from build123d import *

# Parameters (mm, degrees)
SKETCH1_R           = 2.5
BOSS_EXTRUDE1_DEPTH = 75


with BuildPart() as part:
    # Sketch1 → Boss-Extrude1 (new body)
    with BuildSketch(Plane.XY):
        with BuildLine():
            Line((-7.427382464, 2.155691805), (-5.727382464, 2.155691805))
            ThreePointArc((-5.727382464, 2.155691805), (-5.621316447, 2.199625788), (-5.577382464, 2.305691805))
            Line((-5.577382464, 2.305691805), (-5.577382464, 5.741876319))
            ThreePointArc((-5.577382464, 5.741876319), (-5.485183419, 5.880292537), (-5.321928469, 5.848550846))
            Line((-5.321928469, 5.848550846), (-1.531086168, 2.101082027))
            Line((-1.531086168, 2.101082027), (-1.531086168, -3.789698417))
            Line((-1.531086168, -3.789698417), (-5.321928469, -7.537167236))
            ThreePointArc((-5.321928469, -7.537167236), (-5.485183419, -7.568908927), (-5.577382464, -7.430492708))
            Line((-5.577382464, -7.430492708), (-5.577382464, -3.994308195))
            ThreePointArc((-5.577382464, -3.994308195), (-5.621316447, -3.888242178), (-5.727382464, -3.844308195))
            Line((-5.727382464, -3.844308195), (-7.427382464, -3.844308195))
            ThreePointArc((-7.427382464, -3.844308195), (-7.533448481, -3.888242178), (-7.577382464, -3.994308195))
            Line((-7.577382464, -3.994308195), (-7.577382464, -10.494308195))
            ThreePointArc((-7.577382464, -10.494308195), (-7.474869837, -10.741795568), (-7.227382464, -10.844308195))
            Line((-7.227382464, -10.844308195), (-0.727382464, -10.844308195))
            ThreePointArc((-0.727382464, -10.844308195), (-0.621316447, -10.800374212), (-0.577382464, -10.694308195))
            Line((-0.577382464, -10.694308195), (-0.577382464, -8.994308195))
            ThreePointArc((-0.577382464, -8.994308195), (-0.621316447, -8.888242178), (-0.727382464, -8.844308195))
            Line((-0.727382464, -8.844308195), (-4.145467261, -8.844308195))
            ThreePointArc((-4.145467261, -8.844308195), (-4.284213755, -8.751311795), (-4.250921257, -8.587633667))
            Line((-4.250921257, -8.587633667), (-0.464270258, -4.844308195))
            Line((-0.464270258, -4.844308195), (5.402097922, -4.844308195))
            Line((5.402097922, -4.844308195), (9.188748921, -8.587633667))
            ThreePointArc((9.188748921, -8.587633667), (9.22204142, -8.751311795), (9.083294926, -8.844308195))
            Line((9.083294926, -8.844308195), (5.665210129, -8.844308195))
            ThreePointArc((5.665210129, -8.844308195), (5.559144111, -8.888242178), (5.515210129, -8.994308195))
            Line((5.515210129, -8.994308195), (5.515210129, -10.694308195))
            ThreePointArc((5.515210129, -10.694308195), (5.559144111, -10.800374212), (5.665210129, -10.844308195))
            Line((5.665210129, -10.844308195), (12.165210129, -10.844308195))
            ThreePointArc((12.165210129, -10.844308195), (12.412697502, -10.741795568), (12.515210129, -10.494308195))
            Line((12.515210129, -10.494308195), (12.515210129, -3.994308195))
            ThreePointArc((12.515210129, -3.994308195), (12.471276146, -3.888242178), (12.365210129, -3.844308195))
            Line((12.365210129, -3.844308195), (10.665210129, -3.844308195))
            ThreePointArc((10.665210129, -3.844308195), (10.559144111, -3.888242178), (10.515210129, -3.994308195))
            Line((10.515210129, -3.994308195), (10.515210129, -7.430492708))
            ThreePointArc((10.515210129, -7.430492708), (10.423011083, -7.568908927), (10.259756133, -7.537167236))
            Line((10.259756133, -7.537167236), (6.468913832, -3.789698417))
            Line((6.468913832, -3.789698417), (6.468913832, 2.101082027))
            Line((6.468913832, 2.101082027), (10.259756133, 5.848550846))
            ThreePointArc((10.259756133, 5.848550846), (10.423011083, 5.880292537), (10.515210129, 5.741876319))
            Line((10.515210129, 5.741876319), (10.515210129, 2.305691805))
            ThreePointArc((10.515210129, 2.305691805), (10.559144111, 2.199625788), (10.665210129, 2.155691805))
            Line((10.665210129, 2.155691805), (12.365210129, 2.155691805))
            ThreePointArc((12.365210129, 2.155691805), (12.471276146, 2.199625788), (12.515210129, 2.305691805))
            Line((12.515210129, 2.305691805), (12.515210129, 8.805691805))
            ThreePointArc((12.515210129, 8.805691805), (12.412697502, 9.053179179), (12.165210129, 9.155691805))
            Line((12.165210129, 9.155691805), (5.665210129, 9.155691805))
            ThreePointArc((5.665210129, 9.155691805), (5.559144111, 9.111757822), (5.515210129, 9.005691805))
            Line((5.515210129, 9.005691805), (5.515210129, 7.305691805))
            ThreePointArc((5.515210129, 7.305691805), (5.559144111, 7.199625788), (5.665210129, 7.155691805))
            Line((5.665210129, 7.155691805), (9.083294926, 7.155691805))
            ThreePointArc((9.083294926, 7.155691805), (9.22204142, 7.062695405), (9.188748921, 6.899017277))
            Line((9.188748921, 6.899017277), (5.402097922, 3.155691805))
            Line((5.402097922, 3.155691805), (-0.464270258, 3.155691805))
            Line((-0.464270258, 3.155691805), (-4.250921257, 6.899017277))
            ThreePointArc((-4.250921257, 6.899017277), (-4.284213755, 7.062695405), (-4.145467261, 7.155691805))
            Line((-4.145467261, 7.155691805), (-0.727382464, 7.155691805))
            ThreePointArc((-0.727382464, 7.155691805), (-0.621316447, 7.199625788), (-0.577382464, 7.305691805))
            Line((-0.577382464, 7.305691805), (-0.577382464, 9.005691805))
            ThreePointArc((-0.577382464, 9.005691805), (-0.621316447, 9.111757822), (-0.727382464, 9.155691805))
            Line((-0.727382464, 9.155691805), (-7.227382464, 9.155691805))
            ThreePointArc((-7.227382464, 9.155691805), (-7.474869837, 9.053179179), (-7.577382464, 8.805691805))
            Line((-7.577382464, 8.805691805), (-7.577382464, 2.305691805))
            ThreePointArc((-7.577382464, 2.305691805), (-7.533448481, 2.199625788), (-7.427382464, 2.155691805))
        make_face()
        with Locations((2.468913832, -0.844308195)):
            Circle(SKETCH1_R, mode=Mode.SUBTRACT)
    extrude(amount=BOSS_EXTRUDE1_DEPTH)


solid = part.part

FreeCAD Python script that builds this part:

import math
import FreeCAD as App
import Part
import Sketcher
from FreeCAD import Vector

doc = App.newDocument("Part")
params = doc.addObject("Spreadsheet::Sheet", "Params")
for row, (alias, value) in enumerate([
    ("sketch1_diameter", "5 mm"),
    ("sketch1_radius", "0.15 mm"),
    ("sketch1_radius2", "0.35 mm"),
    ("sketch1_width", "1.7 mm"),
    ("sketch1_width2", "6.5 mm"),
    ("pad1_length", "75 mm"),
], start=1):
    params.set(f"A{row}", alias)
    params.set(f"B{row}", "=" + value)
    params.setAlias(f"B{row}", alias)

body = doc.addObject("PartDesign::Body", "Body")

# Sketch on XY plane
sketch1 = doc.addObject("Sketcher::SketchObject", "Sketch")
body.addObject(sketch1)
sketch1.AttachmentSupport = (doc.XY_Plane, [""])
sketch1.MapMode = "FlatFace"
sketch1.addGeometry(Part.LineSegment(Vector(-7.43, 2.16, 0), Vector(-5.73, 2.16, 0)), False)
sketch1.addGeometry(Part.ArcOfCircle(Part.Circle(Vector(-5.73, 2.31, 0), Vector(0, 0, 1), 0.15), math.radians(-90), math.radians(0)), False)
sketch1.addGeometry(Part.LineSegment(Vector(-5.58, 2.31, 0), Vector(-5.58, 5.74, 0)), False)
sketch1.addGeometry(Part.ArcOfCircle(Part.Circle(Vector(-5.43, 5.74, 0), Vector(0, 0, 1), 0.15), math.radians(45), math.radians(180)), False)
sketch1.addGeometry(Part.LineSegment(Vector(-5.32, 5.85, 0), Vector(-1.53, 2.1, 0)), False)
sketch1.addGeometry(Part.LineSegment(Vector(-1.53, 2.1, 0), Vector(-1.53, -3.79, 0)), False)
sketch1.addGeometry(Part.LineSegment(Vector(-1.53, -3.79, 0), Vector(-5.32, -7.54, 0)), False)
sketch1.addGeometry(Part.ArcOfCircle(Part.Circle(Vector(-5.43, -7.43, 0), Vector(0, 0, 1), 0.15), math.radians(180), math.radians(315)), False)
sketch1.addGeometry(Part.LineSegment(Vector(-5.58, -7.43, 0), Vector(-5.58, -3.99, 0)), False)
sketch1.addGeometry(Part.ArcOfCircle(Part.Circle(Vector(-5.73, -3.99, 0), Vector(0, 0, 1), 0.15), math.radians(0), math.radians(90)), False)
sketch1.addGeometry(Part.LineSegment(Vector(-5.73, -3.84, 0), Vector(-7.43, -3.84, 0)), False)
sketch1.addGeometry(Part.ArcOfCircle(Part.Circle(Vector(-7.43, -3.99, 0), Vector(0, 0, 1), 0.15), math.radians(90), math.radians(180)), False)
sketch1.addGeometry(Part.LineSegment(Vector(-7.58, -3.99, 0), Vector(-7.58, -10.49, 0)), False)
sketch1.addGeometry(Part.ArcOfCircle(Part.Circle(Vector(-7.23, -10.49, 0), Vector(0, 0, 1), 0.35), math.radians(-180), math.radians(-90)), False)
sketch1.addGeometry(Part.LineSegment(Vector(-7.23, -10.84, 0), Vector(-0.73, -10.84, 0)), False)
sketch1.addGeometry(Part.ArcOfCircle(Part.Circle(Vector(-0.73, -10.69, 0), Vector(0, 0, 1), 0.15), math.radians(-90), math.radians(0)), False)
sketch1.addGeometry(Part.LineSegment(Vector(-0.58, -10.69, 0), Vector(-0.58, -8.99, 0)), False)
sketch1.addGeometry(Part.ArcOfCircle(Part.Circle(Vector(-0.73, -8.99, 0), Vector(0, 0, 1), 0.15), math.radians(0), math.radians(90)), False)
sketch1.addGeometry(Part.LineSegment(Vector(-0.73, -8.84, 0), Vector(-4.15, -8.84, 0)), False)
sketch1.addGeometry(Part.ArcOfCircle(Part.Circle(Vector(-4.15, -8.69, 0), Vector(0, 0, 1), 0.15), math.radians(135), math.radians(270)), False)
sketch1.addGeometry(Part.LineSegment(Vector(-4.25, -8.59, 0), Vector(-0.46, -4.84, 0)), False)
sketch1.addGeometry(Part.LineSegment(Vector(-0.46, -4.84, 0), Vector(5.4, -4.84, 0)), False)
sketch1.addGeometry(Part.LineSegment(Vector(5.4, -4.84, 0), Vector(9.19, -8.59, 0)), False)
sketch1.addGeometry(Part.ArcOfCircle(Part.Circle(Vector(9.08, -8.69, 0), Vector(0, 0, 1), 0.15), math.radians(-90), math.radians(45)), False)
sketch1.addGeometry(Part.LineSegment(Vector(9.08, -8.84, 0), Vector(5.67, -8.84, 0)), False)
sketch1.addGeometry(Part.ArcOfCircle(Part.Circle(Vector(5.67, -8.99, 0), Vector(0, 0, 1), 0.15), math.radians(90), math.radians(180)), False)
sketch1.addGeometry(Part.LineSegment(Vector(5.52, -8.99, 0), Vector(5.52, -10.69, 0)), False)
sketch1.addGeometry(Part.ArcOfCircle(Part.Circle(Vector(5.67, -10.69, 0), Vector(0, 0, 1), 0.15), math.radians(180), math.radians(270)), False)
sketch1.addGeometry(Part.LineSegment(Vector(5.67, -10.84, 0), Vector(12.17, -10.84, 0)), False)
sketch1.addGeometry(Part.ArcOfCircle(Part.Circle(Vector(12.17, -10.49, 0), Vector(0, 0, 1), 0.35), math.radians(-90), math.radians(0)), False)
sketch1.addGeometry(Part.LineSegment(Vector(12.52, -10.49, 0), Vector(12.52, -3.99, 0)), False)
sketch1.addGeometry(Part.ArcOfCircle(Part.Circle(Vector(12.37, -3.99, 0), Vector(0, 0, 1), 0.15), math.radians(0), math.radians(90)), False)
sketch1.addGeometry(Part.LineSegment(Vector(12.37, -3.84, 0), Vector(10.67, -3.84, 0)), False)
sketch1.addGeometry(Part.ArcOfCircle(Part.Circle(Vector(10.67, -3.99, 0), Vector(0, 0, 1), 0.15), math.radians(90), math.radians(180)), False)
sketch1.addGeometry(Part.LineSegment(Vector(10.52, -3.99, 0), Vector(10.52, -7.43, 0)), False)
sketch1.addGeometry(Part.ArcOfCircle(Part.Circle(Vector(10.37, -7.43, 0), Vector(0, 0, 1), 0.15), math.radians(-135), math.radians(0)), False)
sketch1.addGeometry(Part.LineSegment(Vector(10.26, -7.54, 0), Vector(6.47, -3.79, 0)), False)
sketch1.addGeometry(Part.LineSegment(Vector(6.47, -3.79, 0), Vector(6.47, 2.1, 0)), False)
sketch1.addGeometry(Part.LineSegment(Vector(6.47, 2.1, 0), Vector(10.26, 5.85, 0)), False)
sketch1.addGeometry(Part.ArcOfCircle(Part.Circle(Vector(10.37, 5.74, 0), Vector(0, 0, 1), 0.15), math.radians(0), math.radians(135)), False)
sketch1.addGeometry(Part.LineSegment(Vector(10.52, 5.74, 0), Vector(10.52, 2.31, 0)), False)
sketch1.addGeometry(Part.ArcOfCircle(Part.Circle(Vector(10.67, 2.31, 0), Vector(0, 0, 1), 0.15), math.radians(180), math.radians(270)), False)
sketch1.addGeometry(Part.LineSegment(Vector(10.67, 2.16, 0), Vector(12.37, 2.16, 0)), False)
sketch1.addGeometry(Part.ArcOfCircle(Part.Circle(Vector(12.37, 2.31, 0), Vector(0, 0, 1), 0.15), math.radians(-90), math.radians(0)), False)
sketch1.addGeometry(Part.LineSegment(Vector(12.52, 2.31, 0), Vector(12.52, 8.81, 0)), False)
sketch1.addGeometry(Part.ArcOfCircle(Part.Circle(Vector(12.17, 8.81, 0), Vector(0, 0, 1), 0.35), math.radians(0), math.radians(90)), False)
sketch1.addGeometry(Part.LineSegment(Vector(12.17, 9.16, 0), Vector(5.67, 9.16, 0)), False)
sketch1.addGeometry(Part.ArcOfCircle(Part.Circle(Vector(5.67, 9.01, 0), Vector(0, 0, 1), 0.15), math.radians(90), math.radians(180)), False)
sketch1.addGeometry(Part.LineSegment(Vector(5.52, 9.01, 0), Vector(5.52, 7.31, 0)), False)
sketch1.addGeometry(Part.ArcOfCircle(Part.Circle(Vector(5.67, 7.31, 0), Vector(0, 0, 1), 0.15), math.radians(180), math.radians(270)), False)
sketch1.addGeometry(Part.LineSegment(Vector(5.67, 7.16, 0), Vector(9.08, 7.16, 0)), False)
sketch1.addGeometry(Part.ArcOfCircle(Part.Circle(Vector(9.08, 7.01, 0), Vector(0, 0, 1), 0.15), math.radians(-45), math.radians(90)), False)
sketch1.addGeometry(Part.LineSegment(Vector(9.19, 6.9, 0), Vector(5.4, 3.16, 0)), False)
sketch1.addGeometry(Part.LineSegment(Vector(5.4, 3.16, 0), Vector(-0.46, 3.16, 0)), False)
sketch1.addGeometry(Part.LineSegment(Vector(-0.46, 3.16, 0), Vector(-4.25, 6.9, 0)), False)
sketch1.addGeometry(Part.ArcOfCircle(Part.Circle(Vector(-4.15, 7.01, 0), Vector(0, 0, 1), 0.15), math.radians(90), math.radians(225)), False)
sketch1.addGeometry(Part.LineSegment(Vector(-4.15, 7.16, 0), Vector(-0.73, 7.16, 0)), False)
sketch1.addGeometry(Part.ArcOfCircle(Part.Circle(Vector(-0.73, 7.31, 0), Vector(0, 0, 1), 0.15), math.radians(-90), math.radians(0)), False)
sketch1.addGeometry(Part.LineSegment(Vector(-0.58, 7.31, 0), Vector(-0.58, 9.01, 0)), False)
sketch1.addGeometry(Part.ArcOfCircle(Part.Circle(Vector(-0.73, 9.01, 0), Vector(0, 0, 1), 0.15), math.radians(0), math.radians(90)), False)
sketch1.addGeometry(Part.LineSegment(Vector(-0.73, 9.16, 0), Vector(-7.23, 9.16, 0)), False)
sketch1.addGeometry(Part.ArcOfCircle(Part.Circle(Vector(-7.23, 8.81, 0), Vector(0, 0, 1), 0.35), math.radians(90), math.radians(180)), False)
sketch1.addGeometry(Part.LineSegment(Vector(-7.58, 8.81, 0), Vector(-7.58, 2.31, 0)), False)
sketch1.addGeometry(Part.ArcOfCircle(Part.Circle(Vector(-7.43, 2.31, 0), Vector(0, 0, 1), 0.15), math.radians(-180), math.radians(-90)), False)
sketch1.addGeometry(Part.Circle(Vector(2.47, -0.84, 0), Vector(0, 0, 1), 2.5), False)
sketch1.addConstraint(Sketcher.Constraint("Tangent", 0, 2, 1, 1))
sketch1.addConstraint(Sketcher.Constraint("Tangent", 1, 2, 2, 1))
sketch1.addConstraint(Sketcher.Constraint("Tangent", 2, 2, 3, 2))
sketch1.addConstraint(Sketcher.Constraint("Tangent", 3, 1, 4, 1))
sketch1.addConstraint(Sketcher.Constraint("Coincident", 4, 2, 5, 1))
sketch1.addConstraint(Sketcher.Constraint("Coincident", 5, 2, 6, 1))
sketch1.addConstraint(Sketcher.Constraint("Tangent", 6, 2, 7, 2))
sketch1.addConstraint(Sketcher.Constraint("Tangent", 7, 1, 8, 1))
sketch1.addConstraint(Sketcher.Constraint("Tangent", 8, 2, 9, 1))
sketch1.addConstraint(Sketcher.Constraint("Tangent", 9, 2, 10, 1))
sketch1.addConstraint(Sketcher.Constraint("Tangent", 10, 2, 11, 1))
sketch1.addConstraint(Sketcher.Constraint("Tangent", 11, 2, 12, 1))
sketch1.addConstraint(Sketcher.Constraint("Tangent", 12, 2, 13, 1))
sketch1.addConstraint(Sketcher.Constraint("Tangent", 13, 2, 14, 1))
sketch1.addConstraint(Sketcher.Constraint("Tangent", 14, 2, 15, 1))
sketch1.addConstraint(Sketcher.Constraint("Tangent", 15, 2, 16, 1))
sketch1.addConstraint(Sketcher.Constraint("Tangent", 16, 2, 17, 1))
sketch1.addConstraint(Sketcher.Constraint("Tangent", 17, 2, 18, 1))
sketch1.addConstraint(Sketcher.Constraint("Tangent", 18, 2, 19, 2))
sketch1.addConstraint(Sketcher.Constraint("Tangent", 19, 1, 20, 1))
sketch1.addConstraint(Sketcher.Constraint("Coincident", 20, 2, 21, 1))
sketch1.addConstraint(Sketcher.Constraint("Coincident", 21, 2, 22, 1))
sketch1.addConstraint(Sketcher.Constraint("Tangent", 22, 2, 23, 2))
sketch1.addConstraint(Sketcher.Constraint("Tangent", 23, 1, 24, 1))
sketch1.addConstraint(Sketcher.Constraint("Tangent", 24, 2, 25, 1))
sketch1.addConstraint(Sketcher.Constraint("Tangent", 25, 2, 26, 1))
sketch1.addConstraint(Sketcher.Constraint("Tangent", 26, 2, 27, 1))
sketch1.addConstraint(Sketcher.Constraint("Tangent", 27, 2, 28, 1))
sketch1.addConstraint(Sketcher.Constraint("Tangent", 28, 2, 29, 1))
sketch1.addConstraint(Sketcher.Constraint("Tangent", 29, 2, 30, 1))
sketch1.addConstraint(Sketcher.Constraint("Tangent", 30, 2, 31, 1))
sketch1.addConstraint(Sketcher.Constraint("Tangent", 31, 2, 32, 1))
sketch1.addConstraint(Sketcher.Constraint("Tangent", 32, 2, 33, 1))
sketch1.addConstraint(Sketcher.Constraint("Tangent", 33, 2, 34, 1))
sketch1.addConstraint(Sketcher.Constraint("Tangent", 34, 2, 35, 2))
sketch1.addConstraint(Sketcher.Constraint("Tangent", 35, 1, 36, 1))
sketch1.addConstraint(Sketcher.Constraint("Coincident", 36, 2, 37, 1))
sketch1.addConstraint(Sketcher.Constraint("Coincident", 37, 2, 38, 1))
sketch1.addConstraint(Sketcher.Constraint("Tangent", 38, 2, 39, 2))
sketch1.addConstraint(Sketcher.Constraint("Tangent", 39, 1, 40, 1))
sketch1.addConstraint(Sketcher.Constraint("Tangent", 40, 2, 41, 1))
sketch1.addConstraint(Sketcher.Constraint("Tangent", 41, 2, 42, 1))
sketch1.addConstraint(Sketcher.Constraint("Tangent", 42, 2, 43, 1))
sketch1.addConstraint(Sketcher.Constraint("Tangent", 43, 2, 44, 1))
sketch1.addConstraint(Sketcher.Constraint("Tangent", 44, 2, 45, 1))
sketch1.addConstraint(Sketcher.Constraint("Tangent", 45, 2, 46, 1))
sketch1.addConstraint(Sketcher.Constraint("Tangent", 46, 2, 47, 1))
sketch1.addConstraint(Sketcher.Constraint("Tangent", 47, 2, 48, 1))
sketch1.addConstraint(Sketcher.Constraint("Tangent", 48, 2, 49, 1))
sketch1.addConstraint(Sketcher.Constraint("Tangent", 49, 2, 50, 1))
sketch1.addConstraint(Sketcher.Constraint("Tangent", 50, 2, 51, 2))
sketch1.addConstraint(Sketcher.Constraint("Tangent", 51, 1, 52, 1))
sketch1.addConstraint(Sketcher.Constraint("Coincident", 52, 2, 53, 1))
sketch1.addConstraint(Sketcher.Constraint("Coincident", 53, 2, 54, 1))
sketch1.addConstraint(Sketcher.Constraint("Tangent", 54, 2, 55, 2))
sketch1.addConstraint(Sketcher.Constraint("Tangent", 55, 1, 56, 1))
sketch1.addConstraint(Sketcher.Constraint("Tangent", 56, 2, 57, 1))
sketch1.addConstraint(Sketcher.Constraint("Tangent", 57, 2, 58, 1))
sketch1.addConstraint(Sketcher.Constraint("Tangent", 58, 2, 59, 1))
sketch1.addConstraint(Sketcher.Constraint("Tangent", 59, 2, 60, 1))
sketch1.addConstraint(Sketcher.Constraint("Tangent", 60, 2, 61, 1))
sketch1.addConstraint(Sketcher.Constraint("Tangent", 61, 2, 62, 1))
sketch1.addConstraint(Sketcher.Constraint("Tangent", 62, 2, 63, 1))
sketch1.addConstraint(Sketcher.Constraint("Tangent", 63, 2, 0, 1))
sketch1.addConstraint(Sketcher.Constraint("Horizontal", 0))
sketch1.addConstraint(Sketcher.Constraint("Vertical", 2))
sketch1.addConstraint(Sketcher.Constraint("Vertical", 5))
sketch1.addConstraint(Sketcher.Constraint("Vertical", 8))
sketch1.addConstraint(Sketcher.Constraint("Horizontal", 10))
sketch1.addConstraint(Sketcher.Constraint("Vertical", 12))
sketch1.addConstraint(Sketcher.Constraint("Horizontal", 14))
sketch1.addConstraint(Sketcher.Constraint("Vertical", 16))
sketch1.addConstraint(Sketcher.Constraint("Horizontal", 18))
sketch1.addConstraint(Sketcher.Constraint("Horizontal", 21))
sketch1.addConstraint(Sketcher.Constraint("Horizontal", 24))
sketch1.addConstraint(Sketcher.Constraint("Vertical", 26))
sketch1.addConstraint(Sketcher.Constraint("Horizontal", 28))
sketch1.addConstraint(Sketcher.Constraint("Vertical", 30))
sketch1.addConstraint(Sketcher.Constraint("Horizontal", 32))
sketch1.addConstraint(Sketcher.Constraint("Vertical", 34))
sketch1.addConstraint(Sketcher.Constraint("Vertical", 37))
sketch1.addConstraint(Sketcher.Constraint("Vertical", 40))
sketch1.addConstraint(Sketcher.Constraint("Horizontal", 42))
sketch1.addConstraint(Sketcher.Constraint("Vertical", 44))
sketch1.addConstraint(Sketcher.Constraint("Horizontal", 46))
sketch1.addConstraint(Sketcher.Constraint("Vertical", 48))
sketch1.addConstraint(Sketcher.Constraint("Horizontal", 50))
sketch1.addConstraint(Sketcher.Constraint("Horizontal", 53))
sketch1.addConstraint(Sketcher.Constraint("Horizontal", 56))
sketch1.addConstraint(Sketcher.Constraint("Vertical", 58))
sketch1.addConstraint(Sketcher.Constraint("Horizontal", 60))
sketch1.addConstraint(Sketcher.Constraint("Vertical", 62))
sketch1.addConstraint(Sketcher.Constraint("Equal", 1, 3))
sketch1.addConstraint(Sketcher.Constraint("Equal", 3, 7))
sketch1.addConstraint(Sketcher.Constraint("Equal", 7, 9))
sketch1.addConstraint(Sketcher.Constraint("Equal", 9, 11))
sketch1.addConstraint(Sketcher.Constraint("Equal", 11, 15))
sketch1.addConstraint(Sketcher.Constraint("Equal", 15, 17))
sketch1.addConstraint(Sketcher.Constraint("Equal", 17, 19))
sketch1.addConstraint(Sketcher.Constraint("Equal", 19, 23))
sketch1.addConstraint(Sketcher.Constraint("Equal", 23, 25))
sketch1.addConstraint(Sketcher.Constraint("Equal", 25, 27))
sketch1.addConstraint(Sketcher.Constraint("Equal", 13, 29))
sketch1.addConstraint(Sketcher.Constraint("Equal", 27, 31))
sketch1.addConstraint(Sketcher.Constraint("Equal", 31, 33))
sketch1.addConstraint(Sketcher.Constraint("Equal", 33, 35))
sketch1.addConstraint(Sketcher.Constraint("Equal", 35, 39))
sketch1.addConstraint(Sketcher.Constraint("Equal", 39, 41))
sketch1.addConstraint(Sketcher.Constraint("Equal", 41, 43))
sketch1.addConstraint(Sketcher.Constraint("Equal", 29, 45))
sketch1.addConstraint(Sketcher.Constraint("Equal", 43, 47))
sketch1.addConstraint(Sketcher.Constraint("Equal", 47, 49))
sketch1.addConstraint(Sketcher.Constraint("Equal", 49, 51))
sketch1.addConstraint(Sketcher.Constraint("Equal", 51, 55))
sketch1.addConstraint(Sketcher.Constraint("Equal", 55, 57))
sketch1.addConstraint(Sketcher.Constraint("Equal", 57, 59))
sketch1.addConstraint(Sketcher.Constraint("Equal", 45, 61))
sketch1.addConstraint(Sketcher.Constraint("Equal", 59, 63))
sketch1.addConstraint(Sketcher.Constraint("Parallel", 6, 20))
sketch1.addConstraint(Sketcher.Constraint("Parallel", 4, 22))
sketch1.addConstraint(Sketcher.Constraint("Parallel", 22, 36))
sketch1.addConstraint(Sketcher.Constraint("Parallel", 20, 38))
sketch1.addConstraint(Sketcher.Constraint("Parallel", 38, 52))
sketch1.addConstraint(Sketcher.Constraint("Parallel", 36, 54))
sketch1.addConstraint(Sketcher.Constraint("Horizontal", 19, 3, 23, 3))
sketch1.addConstraint(Sketcher.Constraint("Horizontal", 15, 3, 27, 3))
sketch1.addConstraint(Sketcher.Constraint("Horizontal", 11, 3, 31, 3))
sketch1.addConstraint(Sketcher.Constraint("Horizontal", 7, 3, 35, 3))
sketch1.addConstraint(Sketcher.Constraint("Horizontal", 3, 3, 39, 3))
sketch1.addConstraint(Sketcher.Constraint("Horizontal", 1, 3, 41, 3))
sketch1.addConstraint(Sketcher.Constraint("Horizontal", 51, 3, 55, 3))
sketch1.addConstraint(Sketcher.Constraint("Horizontal", 47, 3, 59, 3))
sketch1.addConstraint(Sketcher.Constraint("Horizontal", 19, 1, 22, 2))
sketch1.addConstraint(Sketcher.Constraint("Horizontal", 5, 2, 36, 2))
sketch1.addConstraint(Sketcher.Constraint("Horizontal", 4, 2, 37, 2))
sketch1.addConstraint(Sketcher.Constraint("Vertical", 3, 3, 7, 3))
sketch1.addConstraint(Sketcher.Constraint("Vertical", 31, 3, 43, 3))
sketch1.addConstraint(Sketcher.Constraint("Vertical", 27, 3, 47, 3))
sketch1.addConstraint(Sketcher.Constraint("Vertical", 23, 3, 51, 3))
sketch1.addConstraint(Sketcher.Constraint("Vertical", 19, 3, 55, 3))
sketch1.addConstraint(Sketcher.Constraint("Vertical", 17, 3, 57, 3))
sketch1.addConstraint(Sketcher.Constraint("Vertical", 13, 3, 61, 3))
sketch1.addConstraint(Sketcher.Constraint("Vertical", 21, 2, 52, 2))
sketch1.addConstraint(Sketcher.Constraint("Equal", 18, 24))
sketch1.addConstraint(Sketcher.Constraint("Equal", 14, 28))
sketch1.addConstraint(Sketcher.Constraint("Equal", 10, 32))
sketch1.addConstraint(Sketcher.Constraint("Equal", 2, 8))
sketch1.addConstraint(Sketcher.Constraint("Equal", 60, 12))
sketch1.addConstraint(Sketcher.Constraint("Equal", 42, 16))
sketch1.addConstraint(Sketcher.Constraint("Equal", 30, 44))
sketch1.addConstraint(Sketcher.Constraint("Equal", 26, 48))
sketch1.addConstraint(Sketcher.Constraint("Diameter", 64, 5.0))
sketch1.addConstraint(Sketcher.Constraint("Radius", 1, 0.15))
sketch1.addConstraint(Sketcher.Constraint("Radius", 13, 0.35))
sketch1.addConstraint(Sketcher.Constraint("DistanceX", 0, 1, 0, 2, 1.7))
sketch1.addConstraint(Sketcher.Constraint("DistanceX", 14, 1, 14, 2, 6.5))
sketch1.addConstraint(Sketcher.Constraint("DistanceX", 21, 1, 21, 2, 5.866368))
sketch1.addConstraint(Sketcher.Constraint("DistanceY", 5, 2, 5, 1, 5.89078))
sketch1.addConstraint(Sketcher.Constraint("DistanceY", 5, 2, -1, 1, 3.789698))
sketch1.addConstraint(Sketcher.Constraint("Distance", 4, 5.330479))
sketch1.addConstraint(Sketcher.Constraint("DistanceX", 18, 2, 18, 1, 3.418085))
sketch1.addConstraint(Sketcher.Constraint("DistanceY", 2, 1, 2, 2, 3.436185))
sketch1.addConstraint(Sketcher.Constraint("DistanceY", -1, 1, 1, 3, 2.305692))
sketch1.addConstraint(Sketcher.Constraint("DistanceX", -1, 1, 25, 3, 5.66521))
sketch1.addConstraint(Sketcher.Constraint("DistanceY", 64, 3, -1, 1, 0.844308))
sketch1.addConstraint(Sketcher.Constraint("DistanceX", 3, 1, -1, 1, 5.321928))
sketch1.addConstraint(Sketcher.Constraint("DistanceX", -1, 1, 64, 3, 2.468914))
sketch1.setExpression("Constraints[151]", "Params.sketch1_diameter")
sketch1.setExpression("Constraints[152]", "Params.sketch1_radius")
sketch1.setExpression("Constraints[153]", "Params.sketch1_radius2")
sketch1.setExpression("Constraints[154]", "Params.sketch1_width")
sketch1.setExpression("Constraints[155]", "Params.sketch1_width2")
pad1 = doc.addObject("PartDesign::Pad", "Pad")
body.addObject(pad1)
pad1.Profile = sketch1
pad1.setExpression("Length", "Params.pad1_length")

doc.recompute()
